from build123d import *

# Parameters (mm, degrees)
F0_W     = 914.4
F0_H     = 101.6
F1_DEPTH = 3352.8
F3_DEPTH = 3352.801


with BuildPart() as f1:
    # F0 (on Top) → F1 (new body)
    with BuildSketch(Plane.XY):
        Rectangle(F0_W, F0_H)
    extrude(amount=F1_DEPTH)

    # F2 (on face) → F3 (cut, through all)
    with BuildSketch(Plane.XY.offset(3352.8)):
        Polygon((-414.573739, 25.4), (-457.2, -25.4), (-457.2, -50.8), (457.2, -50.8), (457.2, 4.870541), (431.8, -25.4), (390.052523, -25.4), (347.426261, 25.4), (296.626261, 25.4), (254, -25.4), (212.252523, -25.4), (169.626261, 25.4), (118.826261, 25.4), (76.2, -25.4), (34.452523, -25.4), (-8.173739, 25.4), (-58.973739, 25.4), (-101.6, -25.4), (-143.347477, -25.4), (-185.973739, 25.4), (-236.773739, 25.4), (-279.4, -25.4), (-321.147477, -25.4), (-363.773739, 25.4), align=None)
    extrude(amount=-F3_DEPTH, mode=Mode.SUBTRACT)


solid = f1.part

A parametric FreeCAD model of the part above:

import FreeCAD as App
import Part
import Sketcher

V = App.Vector
Q = App.Units.Quantity


def add_polygon(sketch, points):
    """Adds a closed chain of lines whose ends are joined by coincident constraints."""
    first, n = sketch.GeometryCount, len(points)
    for a, b in zip(points, points[1:] + points[:1]):
        sketch.addGeometry(Part.LineSegment(App.Vector(*a, 0), App.Vector(*b, 0)), False)
    for i in range(n):
        sketch.addConstraint(Sketcher.Constraint("Coincident", first + i, 2, first + (i + 1) % n, 1))

doc = App.newDocument("Part")
body = doc.addObject("PartDesign::Body", "Body")

# Sketch on XY plane
sketch1 = doc.addObject("Sketcher::SketchObject", "Sketch")
body.addObject(sketch1)
sketch1.AttachmentSupport = (doc.XY_Plane, [""])
sketch1.MapMode = "FlatFace"
add_polygon(sketch1, [(-457, 51), (-457, -51), (457, -51), (457, 51)])  # lines 0-3
sketch1.addConstraint(Sketcher.Constraint("Vertical", 0))
sketch1.addConstraint(Sketcher.Constraint("Horizontal", 1))
sketch1.addConstraint(Sketcher.Constraint("Vertical", 2))
sketch1.addConstraint(Sketcher.Constraint("Horizontal", 3))
sketch1.addConstraint(Sketcher.Constraint("Symmetric", 0, 2, 2, 2, -1, 1))
sketch1.addConstraint(Sketcher.Constraint("DistanceX", 1, 1, 1, 2, Q("36 in")))
sketch1.addConstraint(Sketcher.Constraint("DistanceY", 0, 2, 0, 1, Q("4 in")))
pad1 = doc.addObject("PartDesign::Pad", "Pad")
body.addObject(pad1)
pad1.Profile = sketch1
pad1.Length = Q("132 in")

# Sketch on XY plane
sketch2 = doc.addObject("Sketcher::SketchObject", "Sketch001")
body.addObject(sketch2)
sketch2.AttachmentSupport = (doc.XY_Plane, [""])
sketch2.MapMode = "FlatFace"
sketch2.AttachmentOffset = App.Placement(V(0, 0, 132 * 25.4), App.Rotation())
add_polygon(sketch2, [(-415, 25), (-457, -25), (-457, -51), (457, -51), (457, 5), (432, -25), (390, -25), (347, 25), (297, 25), (254, -25), (212, -25), (170, 25), (119, 25), (76, -25), (34, -25), (-8, 25), (-59, 25), (-102, -25), (-143, -25), (-186, 25), (-237, 25), (-279, -25), (-321, -25), (-364, 25)])  # lines 0-23
sketch2.addConstraint(Sketcher.Constraint("Vertical", 1))
sketch2.addConstraint(Sketcher.Constraint("Horizontal", 2))
sketch2.addConstraint(Sketcher.Constraint("Vertical", 3))
sketch2.addConstraint(Sketcher.Constraint("Horizontal", 5))
sketch2.addConstraint(Sketcher.Constraint("Horizontal", 7))
sketch2.addConstraint(Sketcher.Constraint("Horizontal", 9))
sketch2.addConstraint(Sketcher.Constraint("Horizontal", 11))
sketch2.addConstraint(Sketcher.Constraint("Horizontal", 13))
sketch2.addConstraint(Sketcher.Constraint("Horizontal", 15))
sketch2.addConstraint(Sketcher.Constraint("Horizontal", 17))
sketch2.addConstraint(Sketcher.Constraint("Horizontal", 19))
sketch2.addConstraint(Sketcher.Constraint("Horizontal", 21))
sketch2.addConstraint(Sketcher.Constraint("Horizontal", 23))
sketch2.addConstraint(Sketcher.Constraint("Parallel", 0, 4))
sketch2.addConstraint(Sketcher.Constraint("Parallel", 4, 8))
sketch2.addConstraint(Sketcher.Constraint("Parallel", 6, 10))
sketch2.addConstraint(Sketcher.Constraint("Parallel", 8, 12))
sketch2.addConstraint(Sketcher.Constraint("Parallel", 10, 14))
sketch2.addConstraint(Sketcher.Constraint("Parallel", 12, 16))
sketch2.addConstraint(Sketcher.Constraint("Parallel", 14, 18))
sketch2.addConstraint(Sketcher.Constraint("Parallel", 16, 20))
sketch2.addConstraint(Sketcher.Constraint("Parallel", 18, 22))
sketch2.addConstraint(Sketcher.Constraint("Horizontal", 0, 2, 4, 2))
sketch2.addConstraint(Sketcher.Constraint("Horizontal", 5, 2, 8, 2))
sketch2.addConstraint(Sketcher.Constraint("Horizontal", 7, 2, 10, 2))
sketch2.addConstraint(Sketcher.Constraint("Horizontal", 9, 2, 12, 2))
sketch2.addConstraint(Sketcher.Constraint("Horizontal", 11, 2, 14, 2))
sketch2.addConstraint(Sketcher.Constraint("Horizontal", 13, 2, 16, 2))
sketch2.addConstraint(Sketcher.Constraint("Horizontal", 15, 2, 18, 2))
sketch2.addConstraint(Sketcher.Constraint("Horizontal", 17, 2, 20, 2))
sketch2.addConstraint(Sketcher.Constraint("Horizontal", 19, 2, 22, 2))
sketch2.addConstraint(Sketcher.Constraint("Equal", 5, 9))
sketch2.addConstraint(Sketcher.Constraint("Equal", 7, 11))
sketch2.addConstraint(Sketcher.Constraint("Equal", 9, 13))
sketch2.addConstraint(Sketcher.Constraint("Equal", 11, 15))
sketch2.addConstraint(Sketcher.Constraint("Equal", 13, 17))
sketch2.addConstraint(Sketcher.Constraint("Equal", 15, 19))
sketch2.addConstraint(Sketcher.Constraint("Equal", 17, 21))
sketch2.addConstraint(Sketcher.Constraint("Equal", 19, 23))
sketch2.addConstraint(Sketcher.Constraint("Equal", 0, 6))
sketch2.addConstraint(Sketcher.Constraint("DistanceX", 2, 1, 2, 2, Q("36 in")))
sketch2.addConstraint(Sketcher.Constraint("DistanceX", 7, 2, 7, 1, Q("2 in")))
sketch2.addConstraint(Sketcher.Constraint("DistanceY", 1, 2, 1, 1, Q("1 in")))
sketch2.addConstraint(Sketcher.Constraint("DistanceX", 0, 2, -1, 1, Q("18 in")))
sketch2.addConstraint(Sketcher.Constraint("DistanceY", 0, 2, -1, 1, Q("1 in")))
sketch2.addConstraint(Sketcher.Constraint("DistanceX", -1, 1, 4, 2, Q("17 in")))
sketch2.addConstraint(Sketcher.Constraint("DistanceY", -1, 1, 6, 2, Q("1 in")))
sketch2.addConstraint(Sketcher.Constraint("Angle", 0, Q("-130 deg")))
pocket1 = doc.addObject("PartDesign::Pocket", "Pocket")
body.addObject(pocket1)
pocket1.Profile = sketch2
pocket1.Type = "ThroughAll"

doc.recompute()
